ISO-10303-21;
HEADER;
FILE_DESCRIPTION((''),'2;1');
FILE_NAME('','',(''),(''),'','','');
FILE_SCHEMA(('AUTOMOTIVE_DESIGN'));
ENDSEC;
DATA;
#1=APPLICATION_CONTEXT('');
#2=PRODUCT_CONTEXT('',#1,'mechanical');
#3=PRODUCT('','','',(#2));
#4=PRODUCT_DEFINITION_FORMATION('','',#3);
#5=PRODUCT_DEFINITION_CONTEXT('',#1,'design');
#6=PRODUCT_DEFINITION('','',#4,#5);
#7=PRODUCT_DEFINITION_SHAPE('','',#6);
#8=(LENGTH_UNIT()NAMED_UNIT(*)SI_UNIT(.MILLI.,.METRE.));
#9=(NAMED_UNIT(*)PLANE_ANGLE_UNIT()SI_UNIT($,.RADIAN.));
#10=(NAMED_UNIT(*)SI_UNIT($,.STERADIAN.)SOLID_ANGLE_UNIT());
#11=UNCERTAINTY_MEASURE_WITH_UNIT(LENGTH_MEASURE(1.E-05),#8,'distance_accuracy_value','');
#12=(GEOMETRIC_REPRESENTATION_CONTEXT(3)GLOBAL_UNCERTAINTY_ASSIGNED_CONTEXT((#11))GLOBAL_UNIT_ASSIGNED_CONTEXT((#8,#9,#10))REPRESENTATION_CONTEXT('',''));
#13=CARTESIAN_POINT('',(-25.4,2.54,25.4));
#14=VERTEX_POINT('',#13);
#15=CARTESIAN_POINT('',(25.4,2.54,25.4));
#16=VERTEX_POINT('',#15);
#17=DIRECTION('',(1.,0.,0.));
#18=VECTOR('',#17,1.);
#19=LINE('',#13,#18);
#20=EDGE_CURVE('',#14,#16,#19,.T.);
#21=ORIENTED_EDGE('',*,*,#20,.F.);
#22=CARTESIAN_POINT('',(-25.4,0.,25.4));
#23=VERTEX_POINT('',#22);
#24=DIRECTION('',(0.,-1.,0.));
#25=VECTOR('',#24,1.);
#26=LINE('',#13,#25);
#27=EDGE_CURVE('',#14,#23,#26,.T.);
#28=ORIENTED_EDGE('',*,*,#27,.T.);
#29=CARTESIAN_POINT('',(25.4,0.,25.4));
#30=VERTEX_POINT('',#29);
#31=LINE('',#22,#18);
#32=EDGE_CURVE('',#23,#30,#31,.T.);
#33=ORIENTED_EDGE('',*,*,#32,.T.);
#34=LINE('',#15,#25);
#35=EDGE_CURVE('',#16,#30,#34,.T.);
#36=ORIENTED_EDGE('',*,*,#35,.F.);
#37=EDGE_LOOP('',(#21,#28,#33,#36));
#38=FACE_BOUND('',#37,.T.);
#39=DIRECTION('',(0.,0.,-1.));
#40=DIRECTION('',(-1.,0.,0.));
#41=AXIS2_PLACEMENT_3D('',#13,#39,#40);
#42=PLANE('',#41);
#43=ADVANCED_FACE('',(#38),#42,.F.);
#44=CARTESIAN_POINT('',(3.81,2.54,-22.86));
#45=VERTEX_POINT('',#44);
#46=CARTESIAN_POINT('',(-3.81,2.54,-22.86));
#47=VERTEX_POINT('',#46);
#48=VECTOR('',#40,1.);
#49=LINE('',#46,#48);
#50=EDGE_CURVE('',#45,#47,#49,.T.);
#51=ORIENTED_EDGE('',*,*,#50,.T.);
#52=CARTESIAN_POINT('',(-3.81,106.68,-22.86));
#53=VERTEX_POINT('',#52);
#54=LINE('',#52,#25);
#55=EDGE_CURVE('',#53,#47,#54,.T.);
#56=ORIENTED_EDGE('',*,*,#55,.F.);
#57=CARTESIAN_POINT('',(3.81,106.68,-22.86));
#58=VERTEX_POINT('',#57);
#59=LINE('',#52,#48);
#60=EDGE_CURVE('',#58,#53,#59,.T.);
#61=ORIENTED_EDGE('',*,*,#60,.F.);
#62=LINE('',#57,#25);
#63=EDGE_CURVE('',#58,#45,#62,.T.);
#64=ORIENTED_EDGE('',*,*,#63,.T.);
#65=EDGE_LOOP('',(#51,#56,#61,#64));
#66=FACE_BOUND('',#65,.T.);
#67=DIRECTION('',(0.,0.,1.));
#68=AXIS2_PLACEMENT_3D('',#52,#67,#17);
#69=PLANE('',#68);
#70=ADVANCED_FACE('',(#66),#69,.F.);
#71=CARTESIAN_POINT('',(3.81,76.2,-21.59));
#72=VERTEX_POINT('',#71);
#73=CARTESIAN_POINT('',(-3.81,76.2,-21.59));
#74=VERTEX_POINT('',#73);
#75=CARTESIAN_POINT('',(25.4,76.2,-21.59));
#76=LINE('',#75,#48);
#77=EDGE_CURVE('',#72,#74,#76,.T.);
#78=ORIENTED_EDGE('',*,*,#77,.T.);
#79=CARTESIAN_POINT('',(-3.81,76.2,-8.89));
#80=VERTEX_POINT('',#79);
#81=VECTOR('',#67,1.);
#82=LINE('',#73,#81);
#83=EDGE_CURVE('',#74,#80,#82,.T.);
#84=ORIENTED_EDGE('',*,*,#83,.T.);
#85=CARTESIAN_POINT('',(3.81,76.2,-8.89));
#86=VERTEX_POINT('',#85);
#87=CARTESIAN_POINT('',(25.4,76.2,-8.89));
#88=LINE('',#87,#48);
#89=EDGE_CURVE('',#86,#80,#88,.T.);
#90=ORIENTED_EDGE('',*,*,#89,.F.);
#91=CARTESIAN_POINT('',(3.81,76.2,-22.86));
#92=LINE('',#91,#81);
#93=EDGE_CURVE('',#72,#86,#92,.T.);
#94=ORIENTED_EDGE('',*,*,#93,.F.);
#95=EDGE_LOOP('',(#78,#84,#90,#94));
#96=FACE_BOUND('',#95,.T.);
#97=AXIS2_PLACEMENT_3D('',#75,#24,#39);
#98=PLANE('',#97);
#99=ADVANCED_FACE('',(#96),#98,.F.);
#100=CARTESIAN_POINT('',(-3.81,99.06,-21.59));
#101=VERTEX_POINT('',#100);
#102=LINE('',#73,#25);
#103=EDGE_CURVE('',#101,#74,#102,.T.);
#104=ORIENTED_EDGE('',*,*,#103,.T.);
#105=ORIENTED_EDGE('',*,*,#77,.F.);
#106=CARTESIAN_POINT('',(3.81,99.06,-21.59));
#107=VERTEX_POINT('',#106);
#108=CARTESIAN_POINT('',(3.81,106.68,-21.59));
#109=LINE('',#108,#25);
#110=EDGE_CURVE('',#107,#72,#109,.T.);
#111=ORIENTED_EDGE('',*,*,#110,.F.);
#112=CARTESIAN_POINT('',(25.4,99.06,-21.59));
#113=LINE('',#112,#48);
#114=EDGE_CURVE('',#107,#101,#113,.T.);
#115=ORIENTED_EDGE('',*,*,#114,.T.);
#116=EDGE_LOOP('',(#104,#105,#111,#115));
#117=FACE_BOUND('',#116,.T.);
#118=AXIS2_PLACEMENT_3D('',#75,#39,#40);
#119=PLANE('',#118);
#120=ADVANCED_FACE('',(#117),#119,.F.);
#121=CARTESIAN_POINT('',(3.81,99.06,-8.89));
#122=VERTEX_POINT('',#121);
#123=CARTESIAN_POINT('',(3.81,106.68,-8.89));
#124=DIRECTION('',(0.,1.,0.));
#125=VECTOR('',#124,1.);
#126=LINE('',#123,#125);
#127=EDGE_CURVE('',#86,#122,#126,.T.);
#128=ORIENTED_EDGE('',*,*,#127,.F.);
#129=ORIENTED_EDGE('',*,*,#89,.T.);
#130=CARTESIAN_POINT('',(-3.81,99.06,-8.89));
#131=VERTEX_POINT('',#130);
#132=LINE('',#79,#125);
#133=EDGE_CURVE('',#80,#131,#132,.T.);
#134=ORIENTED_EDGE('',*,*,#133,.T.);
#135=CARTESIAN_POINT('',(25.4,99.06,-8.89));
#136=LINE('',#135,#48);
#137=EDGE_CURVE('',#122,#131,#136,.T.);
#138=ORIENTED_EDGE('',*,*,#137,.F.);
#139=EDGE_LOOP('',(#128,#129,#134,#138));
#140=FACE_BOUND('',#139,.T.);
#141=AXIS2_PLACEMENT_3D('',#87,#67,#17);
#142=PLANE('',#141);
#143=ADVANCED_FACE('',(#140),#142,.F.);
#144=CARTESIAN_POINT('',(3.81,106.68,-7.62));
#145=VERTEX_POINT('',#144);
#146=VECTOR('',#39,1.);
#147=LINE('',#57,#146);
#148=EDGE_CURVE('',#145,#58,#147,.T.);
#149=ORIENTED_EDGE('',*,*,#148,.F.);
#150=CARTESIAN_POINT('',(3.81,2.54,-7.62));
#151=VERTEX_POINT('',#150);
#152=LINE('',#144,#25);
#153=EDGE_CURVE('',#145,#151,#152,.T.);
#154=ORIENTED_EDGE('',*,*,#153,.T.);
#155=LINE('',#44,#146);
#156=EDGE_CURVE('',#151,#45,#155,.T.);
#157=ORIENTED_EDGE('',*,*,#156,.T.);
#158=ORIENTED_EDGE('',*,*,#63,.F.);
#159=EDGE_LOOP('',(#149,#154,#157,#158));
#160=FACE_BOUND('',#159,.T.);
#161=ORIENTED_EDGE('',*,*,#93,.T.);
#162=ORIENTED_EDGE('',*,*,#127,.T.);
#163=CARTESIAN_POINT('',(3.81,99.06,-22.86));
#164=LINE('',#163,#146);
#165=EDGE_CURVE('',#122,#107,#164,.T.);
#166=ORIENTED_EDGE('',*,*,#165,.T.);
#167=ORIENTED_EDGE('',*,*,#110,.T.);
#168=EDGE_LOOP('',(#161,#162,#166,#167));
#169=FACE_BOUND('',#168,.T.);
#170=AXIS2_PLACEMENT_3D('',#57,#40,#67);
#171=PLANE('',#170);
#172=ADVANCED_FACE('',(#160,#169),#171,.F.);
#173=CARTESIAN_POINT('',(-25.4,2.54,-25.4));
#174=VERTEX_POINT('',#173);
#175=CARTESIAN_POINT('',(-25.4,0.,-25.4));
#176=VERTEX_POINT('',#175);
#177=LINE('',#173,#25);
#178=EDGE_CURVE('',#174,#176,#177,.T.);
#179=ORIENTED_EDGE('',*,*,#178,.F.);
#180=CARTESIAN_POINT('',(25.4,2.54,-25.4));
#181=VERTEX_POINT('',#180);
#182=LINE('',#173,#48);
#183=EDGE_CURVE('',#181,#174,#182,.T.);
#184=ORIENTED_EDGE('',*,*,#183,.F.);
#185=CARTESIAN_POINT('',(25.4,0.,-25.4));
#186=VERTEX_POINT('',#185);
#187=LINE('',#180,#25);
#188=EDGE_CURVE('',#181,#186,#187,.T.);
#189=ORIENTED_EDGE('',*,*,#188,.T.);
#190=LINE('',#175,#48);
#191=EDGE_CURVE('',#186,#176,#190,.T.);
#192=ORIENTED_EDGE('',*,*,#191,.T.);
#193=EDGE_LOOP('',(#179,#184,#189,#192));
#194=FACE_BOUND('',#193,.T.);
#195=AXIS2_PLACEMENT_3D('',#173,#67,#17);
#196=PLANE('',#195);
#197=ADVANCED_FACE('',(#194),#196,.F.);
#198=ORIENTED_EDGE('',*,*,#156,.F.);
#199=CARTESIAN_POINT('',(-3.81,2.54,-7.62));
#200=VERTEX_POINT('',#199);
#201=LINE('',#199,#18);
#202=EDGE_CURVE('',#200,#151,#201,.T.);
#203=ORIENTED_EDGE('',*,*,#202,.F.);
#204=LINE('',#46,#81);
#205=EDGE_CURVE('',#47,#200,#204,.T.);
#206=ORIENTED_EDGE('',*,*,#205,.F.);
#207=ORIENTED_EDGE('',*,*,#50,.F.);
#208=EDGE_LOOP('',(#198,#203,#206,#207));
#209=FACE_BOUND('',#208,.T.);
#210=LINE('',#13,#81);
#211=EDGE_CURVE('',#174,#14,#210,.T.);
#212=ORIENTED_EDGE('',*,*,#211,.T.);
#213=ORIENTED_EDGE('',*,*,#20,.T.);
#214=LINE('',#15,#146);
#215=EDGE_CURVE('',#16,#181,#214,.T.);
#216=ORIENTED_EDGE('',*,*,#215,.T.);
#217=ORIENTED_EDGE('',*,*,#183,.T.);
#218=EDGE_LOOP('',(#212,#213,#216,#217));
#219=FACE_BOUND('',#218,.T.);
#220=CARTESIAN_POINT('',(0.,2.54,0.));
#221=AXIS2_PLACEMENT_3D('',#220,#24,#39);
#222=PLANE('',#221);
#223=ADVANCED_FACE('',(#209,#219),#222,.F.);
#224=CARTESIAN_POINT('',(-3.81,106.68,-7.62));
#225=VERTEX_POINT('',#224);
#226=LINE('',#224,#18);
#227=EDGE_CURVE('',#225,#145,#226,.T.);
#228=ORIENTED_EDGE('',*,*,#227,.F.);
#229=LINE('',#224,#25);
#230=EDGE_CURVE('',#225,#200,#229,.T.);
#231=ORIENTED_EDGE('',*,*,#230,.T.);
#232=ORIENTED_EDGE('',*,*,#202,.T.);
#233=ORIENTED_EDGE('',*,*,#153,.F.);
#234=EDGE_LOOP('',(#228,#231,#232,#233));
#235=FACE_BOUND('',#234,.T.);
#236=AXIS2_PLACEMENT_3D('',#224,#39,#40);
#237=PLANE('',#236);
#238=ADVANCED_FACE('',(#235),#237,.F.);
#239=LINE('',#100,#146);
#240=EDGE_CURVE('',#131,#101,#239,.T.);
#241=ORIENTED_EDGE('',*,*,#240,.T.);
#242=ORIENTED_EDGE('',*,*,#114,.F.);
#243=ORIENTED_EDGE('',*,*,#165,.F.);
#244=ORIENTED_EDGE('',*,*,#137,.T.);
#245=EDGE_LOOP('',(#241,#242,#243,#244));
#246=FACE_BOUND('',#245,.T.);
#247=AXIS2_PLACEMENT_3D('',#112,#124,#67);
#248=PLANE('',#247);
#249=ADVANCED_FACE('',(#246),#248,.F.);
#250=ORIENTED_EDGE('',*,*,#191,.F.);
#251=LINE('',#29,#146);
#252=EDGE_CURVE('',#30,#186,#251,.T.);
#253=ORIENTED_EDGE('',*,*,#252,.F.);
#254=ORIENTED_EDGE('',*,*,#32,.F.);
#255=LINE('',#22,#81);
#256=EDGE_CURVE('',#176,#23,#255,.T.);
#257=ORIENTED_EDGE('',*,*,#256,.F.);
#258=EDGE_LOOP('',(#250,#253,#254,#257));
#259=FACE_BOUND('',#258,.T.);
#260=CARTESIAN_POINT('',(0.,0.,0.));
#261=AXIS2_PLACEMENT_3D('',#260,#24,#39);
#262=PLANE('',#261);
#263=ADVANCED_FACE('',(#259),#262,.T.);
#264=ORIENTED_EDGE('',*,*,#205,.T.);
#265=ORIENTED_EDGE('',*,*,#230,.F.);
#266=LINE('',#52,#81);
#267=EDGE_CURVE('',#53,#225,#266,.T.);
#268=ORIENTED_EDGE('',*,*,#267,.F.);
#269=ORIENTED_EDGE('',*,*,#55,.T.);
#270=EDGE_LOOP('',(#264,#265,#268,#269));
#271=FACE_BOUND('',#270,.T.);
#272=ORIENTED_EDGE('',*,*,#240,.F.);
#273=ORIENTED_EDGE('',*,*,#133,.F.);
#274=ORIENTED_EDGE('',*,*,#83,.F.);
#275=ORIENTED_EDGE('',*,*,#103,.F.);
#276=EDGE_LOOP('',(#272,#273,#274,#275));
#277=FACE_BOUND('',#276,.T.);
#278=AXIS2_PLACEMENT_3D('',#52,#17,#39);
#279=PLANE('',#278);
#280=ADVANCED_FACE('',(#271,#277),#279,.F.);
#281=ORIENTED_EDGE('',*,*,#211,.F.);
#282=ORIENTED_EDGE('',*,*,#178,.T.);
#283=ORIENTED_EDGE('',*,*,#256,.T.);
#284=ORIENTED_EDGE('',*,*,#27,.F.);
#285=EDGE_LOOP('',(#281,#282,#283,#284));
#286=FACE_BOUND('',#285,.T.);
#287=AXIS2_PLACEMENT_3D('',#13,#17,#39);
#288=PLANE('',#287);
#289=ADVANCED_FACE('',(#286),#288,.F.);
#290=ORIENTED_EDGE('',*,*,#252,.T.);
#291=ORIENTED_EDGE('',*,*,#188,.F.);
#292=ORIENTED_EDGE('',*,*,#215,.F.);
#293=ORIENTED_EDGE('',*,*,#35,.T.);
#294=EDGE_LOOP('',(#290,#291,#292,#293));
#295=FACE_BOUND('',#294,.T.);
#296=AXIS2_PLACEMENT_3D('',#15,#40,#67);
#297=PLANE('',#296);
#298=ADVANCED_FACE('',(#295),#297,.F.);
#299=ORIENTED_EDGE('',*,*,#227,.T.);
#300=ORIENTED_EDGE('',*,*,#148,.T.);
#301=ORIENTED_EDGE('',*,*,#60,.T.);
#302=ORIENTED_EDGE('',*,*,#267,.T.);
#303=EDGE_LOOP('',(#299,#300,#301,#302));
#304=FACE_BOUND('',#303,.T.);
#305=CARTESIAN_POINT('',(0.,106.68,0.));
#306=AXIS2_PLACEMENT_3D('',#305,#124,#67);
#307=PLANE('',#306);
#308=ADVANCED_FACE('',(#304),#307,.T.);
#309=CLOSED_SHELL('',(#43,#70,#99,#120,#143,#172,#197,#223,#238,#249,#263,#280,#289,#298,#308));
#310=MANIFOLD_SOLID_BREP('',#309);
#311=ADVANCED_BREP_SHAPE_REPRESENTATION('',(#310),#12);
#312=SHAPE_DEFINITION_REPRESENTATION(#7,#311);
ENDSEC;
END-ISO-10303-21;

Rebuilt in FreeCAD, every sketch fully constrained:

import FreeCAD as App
import Part
import Sketcher

V = App.Vector
Q = App.Units.Quantity


def add_polygon(sketch, points):
    """Adds a closed chain of lines whose ends are joined by coincident constraints."""
    first, n = sketch.GeometryCount, len(points)
    for a, b in zip(points, points[1:] + points[:1]):
        sketch.addGeometry(Part.LineSegment(App.Vector(*a, 0), App.Vector(*b, 0)), False)
    for i in range(n):
        sketch.addConstraint(Sketcher.Constraint("Coincident", first + i, 2, first + (i + 1) % n, 1))

doc = App.newDocument("Part")
body = doc.addObject("PartDesign::Body", "Body")

# Sketch on XZ plane
sketch1 = doc.addObject("Sketcher::SketchObject", "Sketch")
body.addObject(sketch1)
sketch1.AttachmentSupport = (doc.XZ_Plane, [""])
sketch1.MapMode = "FlatFace"
add_polygon(sketch1, [(-25, -25), (-25, 25), (25, 25), (25, -25)])  # lines 0-3
sketch1.addConstraint([
    Sketcher.Constraint("Vertical", 0),
    Sketcher.Constraint("Horizontal", 1),
    Sketcher.Constraint("Vertical", 2),
    Sketcher.Constraint("Horizontal", 3),
    Sketcher.Constraint("Symmetric", 0, 2, 2, 2, -1, 1),
    Sketcher.Constraint("Equal", 3, 0),
    Sketcher.Constraint("DistanceX", 1, 1, 1, 2, Q("2 in")),
])
pad1 = doc.addObject("PartDesign::Pad", "Pad")
body.addObject(pad1)
pad1.Profile = sketch1
pad1.Length = Q("0.1 in")
pad1.Reversed = True

# Sketch on XZ plane
sketch2 = doc.addObject("Sketcher::SketchObject", "Sketch001")
body.addObject(sketch2)
sketch2.AttachmentSupport = (doc.XZ_Plane, [""])
sketch2.MapMode = "FlatFace"
sketch2.AttachmentOffset = App.Placement(V(0, 0, -0.1 * 25.4), App.Rotation())
add_polygon(sketch2, [(-4, -23), (-4, -8), (4, -8), (4, -23)])  # lines 0-3
sketch2.addConstraint([
    Sketcher.Constraint("Vertical", 0),
    Sketcher.Constraint("Horizontal", 1),
    Sketcher.Constraint("Vertical", 2),
    Sketcher.Constraint("Horizontal", 3),
    Sketcher.Constraint("DistanceX", 1, 1, 1, 2, Q("0.3 in")),
    Sketcher.Constraint("DistanceY", 0, 1, 0, 2, Q("0.6 in")),
    Sketcher.Constraint("DistanceY", 0, 2, -1, 1, Q("0.3 in")),
    Sketcher.Constraint("DistanceX", 0, 2, -1, 1, Q("0.15 in")),
])
pad2 = doc.addObject("PartDesign::Pad", "Pad001")
body.addObject(pad2)
pad2.Profile = sketch2
pad2.Length = Q("4.1 in")
pad2.Reversed = True

# Sketch on YZ plane
sketch3 = doc.addObject("Sketcher::SketchObject", "Sketch002")
body.addObject(sketch3)
sketch3.AttachmentSupport = (doc.YZ_Plane, [""])
sketch3.MapMode = "FlatFace"
sketch3.AttachmentOffset = App.Placement(V(0, 0, -0.15 * 25.4), App.Rotation())
add_polygon(sketch3, [(99, -22), (76, -22), (76, -9), (99, -9)])  # lines 0-3
sketch3.addConstraint([
    Sketcher.Constraint("Horizontal", 0),
    Sketcher.Constraint("Vertical", 1),
    Sketcher.Constraint("Horizontal", 2),
    Sketcher.Constraint("Vertical", 3),
    Sketcher.Constraint("DistanceX", 0, 2, 0, 1, Q("0.9 in")),
    Sketcher.Constraint("DistanceY", 1, 1, 1, 2, Q("0.5 in")),
    Sketcher.Constraint("DistanceX", -1, 1, 0, 2, Q("3 in")),
    Sketcher.Constraint("DistanceY", 0, 2, -1, 1, Q("0.85 in")),
])
pocket1 = doc.addObject("PartDesign::Pocket", "Pocket")
body.addObject(pocket1)
pocket1.Profile = sketch3
pocket1.Type = "ThroughAll"
pocket1.Reversed = True

doc.recompute()
